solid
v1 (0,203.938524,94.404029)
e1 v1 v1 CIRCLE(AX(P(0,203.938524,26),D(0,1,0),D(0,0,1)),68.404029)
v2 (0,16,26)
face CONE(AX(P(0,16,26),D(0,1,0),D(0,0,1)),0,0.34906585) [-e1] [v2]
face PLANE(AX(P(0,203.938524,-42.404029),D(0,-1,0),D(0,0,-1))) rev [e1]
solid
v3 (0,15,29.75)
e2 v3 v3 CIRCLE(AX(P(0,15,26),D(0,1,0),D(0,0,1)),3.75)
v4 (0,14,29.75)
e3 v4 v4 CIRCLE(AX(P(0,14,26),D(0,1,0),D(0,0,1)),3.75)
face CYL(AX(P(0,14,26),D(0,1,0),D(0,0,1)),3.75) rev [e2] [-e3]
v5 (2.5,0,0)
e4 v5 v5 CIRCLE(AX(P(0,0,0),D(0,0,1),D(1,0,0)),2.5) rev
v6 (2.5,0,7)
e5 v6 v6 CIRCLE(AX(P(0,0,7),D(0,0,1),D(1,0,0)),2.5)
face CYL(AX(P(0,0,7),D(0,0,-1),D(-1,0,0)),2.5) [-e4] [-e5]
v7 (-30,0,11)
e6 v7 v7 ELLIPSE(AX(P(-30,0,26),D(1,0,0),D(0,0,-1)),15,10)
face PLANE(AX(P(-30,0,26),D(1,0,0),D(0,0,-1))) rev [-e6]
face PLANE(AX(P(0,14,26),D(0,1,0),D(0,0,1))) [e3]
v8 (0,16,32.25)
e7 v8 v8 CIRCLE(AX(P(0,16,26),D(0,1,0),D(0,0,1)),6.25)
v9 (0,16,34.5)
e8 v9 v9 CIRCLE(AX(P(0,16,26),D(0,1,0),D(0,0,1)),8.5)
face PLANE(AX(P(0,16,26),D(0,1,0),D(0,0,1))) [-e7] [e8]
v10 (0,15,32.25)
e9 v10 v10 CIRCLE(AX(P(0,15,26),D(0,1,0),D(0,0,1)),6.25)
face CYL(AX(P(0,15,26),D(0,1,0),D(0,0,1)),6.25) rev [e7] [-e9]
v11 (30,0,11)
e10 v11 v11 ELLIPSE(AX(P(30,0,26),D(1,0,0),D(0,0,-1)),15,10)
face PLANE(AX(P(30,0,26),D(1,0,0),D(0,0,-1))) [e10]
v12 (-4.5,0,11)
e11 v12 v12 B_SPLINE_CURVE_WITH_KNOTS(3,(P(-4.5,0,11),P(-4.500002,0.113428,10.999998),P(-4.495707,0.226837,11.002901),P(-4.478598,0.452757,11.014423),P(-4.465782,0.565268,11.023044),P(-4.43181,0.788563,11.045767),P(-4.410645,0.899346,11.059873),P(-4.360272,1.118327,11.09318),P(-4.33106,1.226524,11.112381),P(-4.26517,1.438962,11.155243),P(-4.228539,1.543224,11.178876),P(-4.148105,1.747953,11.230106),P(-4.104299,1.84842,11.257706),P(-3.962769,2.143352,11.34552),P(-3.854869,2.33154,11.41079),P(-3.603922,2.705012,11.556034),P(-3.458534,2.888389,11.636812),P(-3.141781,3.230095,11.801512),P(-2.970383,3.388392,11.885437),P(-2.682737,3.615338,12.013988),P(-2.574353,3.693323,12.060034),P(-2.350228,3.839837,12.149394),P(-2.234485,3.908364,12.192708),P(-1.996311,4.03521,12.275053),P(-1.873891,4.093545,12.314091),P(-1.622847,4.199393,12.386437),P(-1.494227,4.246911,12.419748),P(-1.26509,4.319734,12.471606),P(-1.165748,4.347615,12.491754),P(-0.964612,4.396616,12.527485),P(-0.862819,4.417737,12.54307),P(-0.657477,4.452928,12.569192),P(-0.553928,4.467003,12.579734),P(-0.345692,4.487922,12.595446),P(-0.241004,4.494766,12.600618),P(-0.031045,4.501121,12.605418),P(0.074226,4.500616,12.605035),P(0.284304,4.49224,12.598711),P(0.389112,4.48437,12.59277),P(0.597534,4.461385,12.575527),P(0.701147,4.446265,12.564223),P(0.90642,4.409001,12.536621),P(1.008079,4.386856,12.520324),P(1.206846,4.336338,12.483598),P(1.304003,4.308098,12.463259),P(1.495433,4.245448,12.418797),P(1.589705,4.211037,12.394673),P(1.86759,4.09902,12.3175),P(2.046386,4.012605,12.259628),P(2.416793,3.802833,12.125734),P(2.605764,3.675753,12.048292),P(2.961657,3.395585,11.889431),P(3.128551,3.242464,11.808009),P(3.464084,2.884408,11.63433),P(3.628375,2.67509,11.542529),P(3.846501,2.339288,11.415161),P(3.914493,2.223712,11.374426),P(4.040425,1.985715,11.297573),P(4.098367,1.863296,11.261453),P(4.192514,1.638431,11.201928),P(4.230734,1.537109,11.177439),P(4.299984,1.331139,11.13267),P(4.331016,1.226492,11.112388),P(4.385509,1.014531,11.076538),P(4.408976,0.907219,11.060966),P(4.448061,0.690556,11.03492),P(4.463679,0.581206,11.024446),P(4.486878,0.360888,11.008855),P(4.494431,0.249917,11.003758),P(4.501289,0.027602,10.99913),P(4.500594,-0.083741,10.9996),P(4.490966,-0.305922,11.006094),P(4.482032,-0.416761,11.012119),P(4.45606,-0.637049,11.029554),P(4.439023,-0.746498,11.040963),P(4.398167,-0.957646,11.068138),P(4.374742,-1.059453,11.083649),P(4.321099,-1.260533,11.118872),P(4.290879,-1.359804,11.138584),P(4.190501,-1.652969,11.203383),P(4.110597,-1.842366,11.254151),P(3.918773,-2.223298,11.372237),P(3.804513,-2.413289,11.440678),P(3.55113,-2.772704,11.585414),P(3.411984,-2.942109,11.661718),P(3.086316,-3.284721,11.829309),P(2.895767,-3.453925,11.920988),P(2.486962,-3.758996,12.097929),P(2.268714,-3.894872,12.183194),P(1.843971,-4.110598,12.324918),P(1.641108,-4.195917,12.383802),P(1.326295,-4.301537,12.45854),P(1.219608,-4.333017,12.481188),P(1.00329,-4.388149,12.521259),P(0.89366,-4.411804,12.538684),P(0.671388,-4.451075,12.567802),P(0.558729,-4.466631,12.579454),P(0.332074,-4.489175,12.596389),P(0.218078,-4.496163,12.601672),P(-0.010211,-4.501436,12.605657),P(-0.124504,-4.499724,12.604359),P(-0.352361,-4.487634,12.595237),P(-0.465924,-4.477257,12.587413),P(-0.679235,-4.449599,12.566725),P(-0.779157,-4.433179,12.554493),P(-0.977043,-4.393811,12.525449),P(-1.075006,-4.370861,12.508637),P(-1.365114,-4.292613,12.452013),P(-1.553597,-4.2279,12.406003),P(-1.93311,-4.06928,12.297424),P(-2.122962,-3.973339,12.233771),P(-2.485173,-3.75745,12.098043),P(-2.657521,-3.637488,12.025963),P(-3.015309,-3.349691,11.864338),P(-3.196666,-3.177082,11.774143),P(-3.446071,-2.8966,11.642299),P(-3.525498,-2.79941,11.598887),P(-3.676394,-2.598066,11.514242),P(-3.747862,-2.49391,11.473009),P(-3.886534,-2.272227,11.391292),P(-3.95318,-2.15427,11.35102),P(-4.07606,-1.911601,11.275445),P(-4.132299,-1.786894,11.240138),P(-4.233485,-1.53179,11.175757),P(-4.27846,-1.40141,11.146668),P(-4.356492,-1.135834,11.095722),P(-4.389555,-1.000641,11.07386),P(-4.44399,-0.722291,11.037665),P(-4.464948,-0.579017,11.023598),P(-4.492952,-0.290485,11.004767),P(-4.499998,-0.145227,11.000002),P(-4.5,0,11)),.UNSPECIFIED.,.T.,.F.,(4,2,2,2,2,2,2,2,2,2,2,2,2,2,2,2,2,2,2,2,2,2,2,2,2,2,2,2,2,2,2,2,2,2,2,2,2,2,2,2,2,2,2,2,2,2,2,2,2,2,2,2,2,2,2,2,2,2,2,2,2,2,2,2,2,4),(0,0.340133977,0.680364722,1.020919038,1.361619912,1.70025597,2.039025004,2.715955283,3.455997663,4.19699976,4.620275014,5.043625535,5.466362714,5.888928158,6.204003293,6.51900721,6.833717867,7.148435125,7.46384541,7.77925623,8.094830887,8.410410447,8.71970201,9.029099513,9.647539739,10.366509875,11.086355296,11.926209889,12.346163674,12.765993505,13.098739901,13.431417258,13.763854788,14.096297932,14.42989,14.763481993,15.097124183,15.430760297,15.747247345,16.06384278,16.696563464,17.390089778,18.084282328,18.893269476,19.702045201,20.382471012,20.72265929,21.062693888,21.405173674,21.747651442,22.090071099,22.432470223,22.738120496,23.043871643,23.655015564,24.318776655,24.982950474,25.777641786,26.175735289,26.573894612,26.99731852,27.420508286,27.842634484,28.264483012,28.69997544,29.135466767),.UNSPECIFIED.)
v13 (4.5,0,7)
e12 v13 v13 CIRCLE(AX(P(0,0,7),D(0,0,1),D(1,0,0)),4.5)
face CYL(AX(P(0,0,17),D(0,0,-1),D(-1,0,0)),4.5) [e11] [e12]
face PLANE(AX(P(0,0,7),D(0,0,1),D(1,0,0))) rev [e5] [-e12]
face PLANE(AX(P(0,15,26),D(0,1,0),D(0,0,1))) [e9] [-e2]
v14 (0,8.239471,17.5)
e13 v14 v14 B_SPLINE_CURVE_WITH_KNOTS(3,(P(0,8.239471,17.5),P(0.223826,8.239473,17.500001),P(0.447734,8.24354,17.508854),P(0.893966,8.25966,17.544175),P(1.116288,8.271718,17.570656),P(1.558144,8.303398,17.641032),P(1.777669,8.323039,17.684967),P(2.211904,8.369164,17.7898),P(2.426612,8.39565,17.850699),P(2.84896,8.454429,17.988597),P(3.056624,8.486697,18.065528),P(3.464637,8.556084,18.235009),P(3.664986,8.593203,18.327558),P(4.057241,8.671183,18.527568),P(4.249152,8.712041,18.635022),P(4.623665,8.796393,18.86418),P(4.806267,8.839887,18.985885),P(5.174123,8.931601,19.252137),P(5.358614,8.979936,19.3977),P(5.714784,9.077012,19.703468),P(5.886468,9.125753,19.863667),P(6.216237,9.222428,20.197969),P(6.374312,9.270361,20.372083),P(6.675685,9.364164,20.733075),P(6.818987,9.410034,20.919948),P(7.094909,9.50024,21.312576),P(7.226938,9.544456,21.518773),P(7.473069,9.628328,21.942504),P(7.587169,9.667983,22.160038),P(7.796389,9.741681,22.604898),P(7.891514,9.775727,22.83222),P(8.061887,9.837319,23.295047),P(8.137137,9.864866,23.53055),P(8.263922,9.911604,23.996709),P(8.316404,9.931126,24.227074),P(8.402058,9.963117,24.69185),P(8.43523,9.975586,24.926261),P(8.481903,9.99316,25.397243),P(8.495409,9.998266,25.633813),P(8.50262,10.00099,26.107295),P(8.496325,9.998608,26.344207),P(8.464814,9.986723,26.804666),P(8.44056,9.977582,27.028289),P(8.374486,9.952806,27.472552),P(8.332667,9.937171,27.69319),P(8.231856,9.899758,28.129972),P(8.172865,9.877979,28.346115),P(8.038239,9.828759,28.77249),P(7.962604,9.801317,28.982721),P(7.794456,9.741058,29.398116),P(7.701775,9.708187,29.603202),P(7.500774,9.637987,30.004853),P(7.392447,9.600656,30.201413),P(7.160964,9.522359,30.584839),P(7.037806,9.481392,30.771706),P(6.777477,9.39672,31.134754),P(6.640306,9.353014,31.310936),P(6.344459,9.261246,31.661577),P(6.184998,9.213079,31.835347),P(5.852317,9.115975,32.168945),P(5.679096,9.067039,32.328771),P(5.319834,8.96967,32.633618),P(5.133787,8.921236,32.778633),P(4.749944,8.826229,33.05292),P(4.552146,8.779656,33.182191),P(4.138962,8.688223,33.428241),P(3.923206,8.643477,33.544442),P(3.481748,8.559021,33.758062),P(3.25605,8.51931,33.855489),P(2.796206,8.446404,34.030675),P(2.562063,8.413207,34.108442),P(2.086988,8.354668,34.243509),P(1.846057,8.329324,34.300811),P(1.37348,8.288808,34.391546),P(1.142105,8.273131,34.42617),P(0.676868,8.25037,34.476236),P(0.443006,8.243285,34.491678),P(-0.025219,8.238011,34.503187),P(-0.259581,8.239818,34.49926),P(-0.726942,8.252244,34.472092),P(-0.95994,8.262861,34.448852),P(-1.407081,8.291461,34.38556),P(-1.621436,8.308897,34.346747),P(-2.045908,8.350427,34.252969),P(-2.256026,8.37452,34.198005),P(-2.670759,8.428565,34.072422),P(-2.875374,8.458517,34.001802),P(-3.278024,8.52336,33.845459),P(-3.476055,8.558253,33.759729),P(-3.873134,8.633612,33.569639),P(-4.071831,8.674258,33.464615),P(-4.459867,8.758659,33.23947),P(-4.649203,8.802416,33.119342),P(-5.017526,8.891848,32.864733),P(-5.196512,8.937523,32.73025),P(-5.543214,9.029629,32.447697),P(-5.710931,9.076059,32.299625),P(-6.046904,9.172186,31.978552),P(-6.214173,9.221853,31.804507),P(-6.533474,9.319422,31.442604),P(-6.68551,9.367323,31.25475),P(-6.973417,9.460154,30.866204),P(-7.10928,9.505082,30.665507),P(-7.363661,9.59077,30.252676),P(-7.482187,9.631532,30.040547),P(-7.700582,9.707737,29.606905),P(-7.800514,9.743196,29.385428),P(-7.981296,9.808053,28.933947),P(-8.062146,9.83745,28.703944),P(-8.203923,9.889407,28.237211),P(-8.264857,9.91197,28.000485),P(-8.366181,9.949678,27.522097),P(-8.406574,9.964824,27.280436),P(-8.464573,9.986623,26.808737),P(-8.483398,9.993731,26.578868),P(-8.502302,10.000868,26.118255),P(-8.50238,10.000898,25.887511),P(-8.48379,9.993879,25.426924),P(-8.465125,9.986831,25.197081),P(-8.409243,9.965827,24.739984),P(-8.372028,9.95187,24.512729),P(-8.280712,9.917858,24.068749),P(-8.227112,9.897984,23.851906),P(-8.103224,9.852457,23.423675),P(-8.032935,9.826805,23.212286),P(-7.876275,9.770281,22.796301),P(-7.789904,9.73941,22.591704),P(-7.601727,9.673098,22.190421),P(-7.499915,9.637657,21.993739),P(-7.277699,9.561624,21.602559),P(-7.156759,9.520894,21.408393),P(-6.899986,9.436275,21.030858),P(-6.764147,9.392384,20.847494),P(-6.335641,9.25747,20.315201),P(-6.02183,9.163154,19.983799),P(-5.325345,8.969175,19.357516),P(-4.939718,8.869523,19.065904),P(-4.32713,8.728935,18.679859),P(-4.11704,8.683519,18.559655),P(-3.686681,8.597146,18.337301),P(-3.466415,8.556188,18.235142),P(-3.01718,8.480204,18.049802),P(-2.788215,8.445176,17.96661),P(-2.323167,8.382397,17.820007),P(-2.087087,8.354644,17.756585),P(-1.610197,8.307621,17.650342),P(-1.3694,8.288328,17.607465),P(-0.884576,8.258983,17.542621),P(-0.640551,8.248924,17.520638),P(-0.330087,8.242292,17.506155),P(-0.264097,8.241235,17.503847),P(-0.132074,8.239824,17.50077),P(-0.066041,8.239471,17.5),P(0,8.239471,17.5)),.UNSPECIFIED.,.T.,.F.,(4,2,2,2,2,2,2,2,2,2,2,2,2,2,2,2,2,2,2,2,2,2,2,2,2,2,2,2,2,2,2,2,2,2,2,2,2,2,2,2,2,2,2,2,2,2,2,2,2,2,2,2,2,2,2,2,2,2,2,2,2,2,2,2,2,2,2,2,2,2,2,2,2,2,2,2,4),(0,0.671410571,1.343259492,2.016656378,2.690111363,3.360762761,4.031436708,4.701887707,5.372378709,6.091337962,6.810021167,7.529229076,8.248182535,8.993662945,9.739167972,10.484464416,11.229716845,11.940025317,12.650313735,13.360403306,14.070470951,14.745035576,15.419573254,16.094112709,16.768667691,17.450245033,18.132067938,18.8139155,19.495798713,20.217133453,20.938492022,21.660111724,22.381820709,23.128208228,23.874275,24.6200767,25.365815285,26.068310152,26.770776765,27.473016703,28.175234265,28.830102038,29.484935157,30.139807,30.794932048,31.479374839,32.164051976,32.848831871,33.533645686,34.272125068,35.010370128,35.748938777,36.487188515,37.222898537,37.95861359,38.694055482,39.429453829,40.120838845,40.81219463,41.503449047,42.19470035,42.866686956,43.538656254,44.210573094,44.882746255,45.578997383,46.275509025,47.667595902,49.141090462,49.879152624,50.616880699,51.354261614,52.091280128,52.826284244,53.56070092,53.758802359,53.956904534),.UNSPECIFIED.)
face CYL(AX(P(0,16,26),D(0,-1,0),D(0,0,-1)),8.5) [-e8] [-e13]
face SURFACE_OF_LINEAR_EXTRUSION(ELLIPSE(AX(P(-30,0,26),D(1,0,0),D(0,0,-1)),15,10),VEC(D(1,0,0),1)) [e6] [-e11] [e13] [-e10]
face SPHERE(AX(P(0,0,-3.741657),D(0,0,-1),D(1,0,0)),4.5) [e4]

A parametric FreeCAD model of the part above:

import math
import FreeCAD as App
import Part
import Sketcher
from FreeCAD import Vector
Q = App.Units.Quantity


def add_polygon(sketch, points):
    """Adds a closed chain of lines whose ends are joined by coincident constraints."""
    first, n = sketch.GeometryCount, len(points)
    for a, b in zip(points, points[1:] + points[:1]):
        sketch.addGeometry(Part.LineSegment(App.Vector(*a, 0), App.Vector(*b, 0)), False)
    for i in range(n):
        sketch.addConstraint(Sketcher.Constraint("Coincident", first + i, 2, first + (i + 1) % n, 1))

doc = App.newDocument("Part")
params = doc.addObject("Spreadsheet::Sheet", "Params")
for row, (alias, value) in enumerate([
    ("sketch1_diameter", "5 mm"),
    ("pad1_length", "7 mm"),
    ("sketch2_diameter", "9 mm"),
    ("pad2_length", "10 mm"),
    ("pad3_length", "30 mm"),
    ("pad3_length2", "30 mm"),
    ("sketch4_diameter", "17 mm"),
    ("pad4_length", "16 mm"),
    ("sketch5_diameter", "12.5 mm"),
    ("pocket1_length", "1 mm"),
    ("sketch6_diameter", "7.5 mm"),
    ("pocket2_length", "1 mm"),
    ("sketch7_radius", "4.5 mm"),
    ("revolution_angle", "360 deg"),
    ("sketch8_length", "200 mm"),
    ("revolution2_angle", "360 deg"),
], start=1):
    params.set(f"A{row}", alias)
    params.set(f"B{row}", "=" + value)
    params.setAlias(f"B{row}", alias)

body = doc.addObject("PartDesign::Body", "Body")

# Sketch on XY plane
sketch1 = body.newObject("Sketcher::SketchObject", "Sketch")
sketch1.AttachmentSupport = (doc.getObject("XY_Plane"), [""])
sketch1.MapMode = "FlatFace"
sketch1.addGeometry(Part.Circle(Vector(0, 0, 0), Vector(0, 0, 1), 2.5), False)
sketch1.addConstraint([
    Sketcher.Constraint("Coincident", 0, 3, -1, 1),
    Sketcher.Constraint("Diameter", 0, 5.0),
])
sketch1.setExpression("Constraints[1]", "Params.sketch1_diameter")
pad1 = body.newObject("PartDesign::Pad", "Pad")
pad1.Profile = sketch1
pad1.setExpression("Length", "Params.pad1_length")

# Sketch on XY plane
sketch2 = body.newObject("Sketcher::SketchObject", "Sketch001")
sketch2.AttachmentSupport = (doc.getObject("XY_Plane"), [""])
sketch2.MapMode = "FlatFace"
sketch2.AttachmentOffset = App.Placement(Vector(0, 0, 7), App.Rotation())
sketch2.addGeometry(Part.Circle(Vector(0, 0, 0), Vector(0, 0, 1), 4.5), False)
sketch2.addConstraint([
    Sketcher.Constraint("Coincident", 0, 3, -1, 1),
    Sketcher.Constraint("Diameter", 0, 9.0),
])
sketch2.setExpression("Constraints[1]", "Params.sketch2_diameter")
pad2 = body.newObject("PartDesign::Pad", "Pad001")
pad2.Profile = sketch2
pad2.setExpression("Length", "Params.pad2_length")

# Sketch on YZ plane
sketch3 = body.newObject("Sketcher::SketchObject", "Sketch002")
sketch3.AttachmentSupport = (doc.getObject("YZ_Plane"), [""])
sketch3.MapMode = "FlatFace"
sketch3.addGeometry(Part.Ellipse(Vector(0, 11, 0), Vector(10, 26, 0), Vector(0, 26, 0)), False)
sketch3.addConstraint(Sketcher.Constraint("Block", 0))
pad3 = body.newObject("PartDesign::Pad", "Pad002")
pad3.Profile = sketch3
pad3.Type = "TwoLengths"
pad3.setExpression("Length", "Params.pad3_length")
pad3.setExpression("Length2", "Params.pad3_length2")

# Sketch on XZ plane
sketch4 = body.newObject("Sketcher::SketchObject", "Sketch003")
sketch4.AttachmentSupport = (doc.getObject("XZ_Plane"), [""])
sketch4.MapMode = "FlatFace"
sketch4.addGeometry(Part.Circle(Vector(0, 26, 0), Vector(0, 0, 1), 8), False)
sketch4.addConstraint([
    Sketcher.Constraint("PointOnObject", 0, 3, -2),
    Sketcher.Constraint("Diameter", 0, 17.0),
    Sketcher.Constraint("DistanceY", -1, 1, 0, 3, 26.0),
])
sketch4.setExpression("Constraints[1]", "Params.sketch4_diameter")
pad4 = body.newObject("PartDesign::Pad", "Pad003")
pad4.Profile = sketch4
pad4.setExpression("Length", "Params.pad4_length")
pad4.Reversed = True

# Sketch on XZ plane
sketch5 = body.newObject("Sketcher::SketchObject", "Sketch004")
sketch5.AttachmentSupport = (doc.getObject("XZ_Plane"), [""])
sketch5.MapMode = "FlatFace"
sketch5.AttachmentOffset = App.Placement(Vector(0, 0, -16), App.Rotation())
sketch5.addGeometry(Part.Circle(Vector(0, 26, 0), Vector(0, 0, 1), 6), False)
sketch5.addConstraint([
    Sketcher.Constraint("PointOnObject", 0, 3, -2),
    Sketcher.Constraint("Diameter", 0, 12.5),
    Sketcher.Constraint("DistanceY", -1, 1, 0, 3, 26.0),
])
sketch5.setExpression("Constraints[1]", "Params.sketch5_diameter")
pocket1 = body.newObject("PartDesign::Pocket", "Pocket")
pocket1.Profile = sketch5
pocket1.setExpression("Length", "Params.pocket1_length")
pocket1.Reversed = True

# Sketch on XZ plane
sketch6 = body.newObject("Sketcher::SketchObject", "Sketch005")
sketch6.AttachmentSupport = (doc.getObject("XZ_Plane"), [""])
sketch6.MapMode = "FlatFace"
sketch6.AttachmentOffset = App.Placement(Vector(0, 0, -15), App.Rotation())
sketch6.addGeometry(Part.Circle(Vector(0, 26, 0), Vector(0, 0, 1), 3.8), False)
sketch6.addConstraint([
    Sketcher.Constraint("PointOnObject", 0, 3, -2),
    Sketcher.Constraint("Diameter", 0, 7.5),
    Sketcher.Constraint("DistanceY", -1, 1, 0, 3, 26.0),
])
sketch6.setExpression("Constraints[1]", "Params.sketch6_diameter")
pocket2 = body.newObject("PartDesign::Pocket", "Pocket001")
pocket2.Profile = sketch6
pocket2.setExpression("Length", "Params.pocket2_length")
pocket2.Reversed = True

# Sketch on XZ plane
sketch7 = body.newObject("Sketcher::SketchObject", "Sketch006")
sketch7.AttachmentSupport = (doc.getObject("XZ_Plane"), [""])
sketch7.MapMode = "FlatFace"
sketch7.addGeometry([
    Part.LineSegment(Vector(0, -8.2, 0), Vector(0, 0.8, 0)),
    Part.ArcOfCircle(Part.Circle(Vector(0, -3.7, 0), Vector(0, 0, 1), 4.5), math.radians(-90), math.radians(90)),
], False)
sketch7.addConstraint([
    Sketcher.Constraint("Coincident", 0, 1, 1, 1),
    Sketcher.Constraint("Coincident", 1, 2, 0, 2),
    Sketcher.Constraint("Vertical", 0),
    Sketcher.Constraint("PointOnObject", 1, 3, -2),
    Sketcher.Constraint("PointOnObject", 0, 1, -2),
    Sketcher.Constraint("Radius", 1, 4.5),
    Sketcher.Constraint("DistanceY", 1, 3, -1, 1, 3.741657),
])
sketch7.setExpression("Constraints[5]", "Params.sketch7_radius")
revolution = body.newObject("PartDesign::Revolution", "Revolution")
revolution.Profile = sketch7
revolution.ReferenceAxis = (sketch7, ["V_Axis"])
revolution.setExpression("Angle", "Params.revolution_angle")
body2 = doc.addObject("PartDesign::Body", "Body001")

# Sketch on YZ plane
sketch8 = body2.newObject("Sketcher::SketchObject", "Sketch007")
sketch8.AttachmentSupport = (doc.getObject("YZ_Plane001"), [""])
sketch8.MapMode = "FlatFace"
add_polygon(sketch8, [(16, 26), (204, -42), (204, 26)])  # lines 0-2
sketch8.addGeometry(Part.LineSegment(Vector(204, 26, 0), Vector(16, 26, 0)), True)  # axis
sketch8.addConstraint([
    Sketcher.Constraint("Vertical", 1),
    Sketcher.Constraint("Horizontal", 2),
    Sketcher.Constraint("Horizontal", 3),
    Sketcher.Constraint("Coincident", 3, 1, 1, 2),
    Sketcher.Constraint("Equal", 2, 3),
    Sketcher.Constraint("Angle", 0, Q("-20 deg")),
    Sketcher.Constraint("Distance", 0, 200.0),
    Sketcher.Constraint("DistanceY", -1, 1, 1, 2, 26.0),
    Sketcher.Constraint("DistanceX", -1, 1, 2, 2, 16.0),
])
sketch8.setExpression("Constraints[9]", "Params.sketch8_length")
revolution2 = body2.newObject("PartDesign::Revolution", "Revolution001")
revolution2.Profile = sketch8
revolution2.ReferenceAxis = (sketch8, ["Axis0"])
revolution2.setExpression("Angle", "Params.revolution2_angle")

doc.recompute()
